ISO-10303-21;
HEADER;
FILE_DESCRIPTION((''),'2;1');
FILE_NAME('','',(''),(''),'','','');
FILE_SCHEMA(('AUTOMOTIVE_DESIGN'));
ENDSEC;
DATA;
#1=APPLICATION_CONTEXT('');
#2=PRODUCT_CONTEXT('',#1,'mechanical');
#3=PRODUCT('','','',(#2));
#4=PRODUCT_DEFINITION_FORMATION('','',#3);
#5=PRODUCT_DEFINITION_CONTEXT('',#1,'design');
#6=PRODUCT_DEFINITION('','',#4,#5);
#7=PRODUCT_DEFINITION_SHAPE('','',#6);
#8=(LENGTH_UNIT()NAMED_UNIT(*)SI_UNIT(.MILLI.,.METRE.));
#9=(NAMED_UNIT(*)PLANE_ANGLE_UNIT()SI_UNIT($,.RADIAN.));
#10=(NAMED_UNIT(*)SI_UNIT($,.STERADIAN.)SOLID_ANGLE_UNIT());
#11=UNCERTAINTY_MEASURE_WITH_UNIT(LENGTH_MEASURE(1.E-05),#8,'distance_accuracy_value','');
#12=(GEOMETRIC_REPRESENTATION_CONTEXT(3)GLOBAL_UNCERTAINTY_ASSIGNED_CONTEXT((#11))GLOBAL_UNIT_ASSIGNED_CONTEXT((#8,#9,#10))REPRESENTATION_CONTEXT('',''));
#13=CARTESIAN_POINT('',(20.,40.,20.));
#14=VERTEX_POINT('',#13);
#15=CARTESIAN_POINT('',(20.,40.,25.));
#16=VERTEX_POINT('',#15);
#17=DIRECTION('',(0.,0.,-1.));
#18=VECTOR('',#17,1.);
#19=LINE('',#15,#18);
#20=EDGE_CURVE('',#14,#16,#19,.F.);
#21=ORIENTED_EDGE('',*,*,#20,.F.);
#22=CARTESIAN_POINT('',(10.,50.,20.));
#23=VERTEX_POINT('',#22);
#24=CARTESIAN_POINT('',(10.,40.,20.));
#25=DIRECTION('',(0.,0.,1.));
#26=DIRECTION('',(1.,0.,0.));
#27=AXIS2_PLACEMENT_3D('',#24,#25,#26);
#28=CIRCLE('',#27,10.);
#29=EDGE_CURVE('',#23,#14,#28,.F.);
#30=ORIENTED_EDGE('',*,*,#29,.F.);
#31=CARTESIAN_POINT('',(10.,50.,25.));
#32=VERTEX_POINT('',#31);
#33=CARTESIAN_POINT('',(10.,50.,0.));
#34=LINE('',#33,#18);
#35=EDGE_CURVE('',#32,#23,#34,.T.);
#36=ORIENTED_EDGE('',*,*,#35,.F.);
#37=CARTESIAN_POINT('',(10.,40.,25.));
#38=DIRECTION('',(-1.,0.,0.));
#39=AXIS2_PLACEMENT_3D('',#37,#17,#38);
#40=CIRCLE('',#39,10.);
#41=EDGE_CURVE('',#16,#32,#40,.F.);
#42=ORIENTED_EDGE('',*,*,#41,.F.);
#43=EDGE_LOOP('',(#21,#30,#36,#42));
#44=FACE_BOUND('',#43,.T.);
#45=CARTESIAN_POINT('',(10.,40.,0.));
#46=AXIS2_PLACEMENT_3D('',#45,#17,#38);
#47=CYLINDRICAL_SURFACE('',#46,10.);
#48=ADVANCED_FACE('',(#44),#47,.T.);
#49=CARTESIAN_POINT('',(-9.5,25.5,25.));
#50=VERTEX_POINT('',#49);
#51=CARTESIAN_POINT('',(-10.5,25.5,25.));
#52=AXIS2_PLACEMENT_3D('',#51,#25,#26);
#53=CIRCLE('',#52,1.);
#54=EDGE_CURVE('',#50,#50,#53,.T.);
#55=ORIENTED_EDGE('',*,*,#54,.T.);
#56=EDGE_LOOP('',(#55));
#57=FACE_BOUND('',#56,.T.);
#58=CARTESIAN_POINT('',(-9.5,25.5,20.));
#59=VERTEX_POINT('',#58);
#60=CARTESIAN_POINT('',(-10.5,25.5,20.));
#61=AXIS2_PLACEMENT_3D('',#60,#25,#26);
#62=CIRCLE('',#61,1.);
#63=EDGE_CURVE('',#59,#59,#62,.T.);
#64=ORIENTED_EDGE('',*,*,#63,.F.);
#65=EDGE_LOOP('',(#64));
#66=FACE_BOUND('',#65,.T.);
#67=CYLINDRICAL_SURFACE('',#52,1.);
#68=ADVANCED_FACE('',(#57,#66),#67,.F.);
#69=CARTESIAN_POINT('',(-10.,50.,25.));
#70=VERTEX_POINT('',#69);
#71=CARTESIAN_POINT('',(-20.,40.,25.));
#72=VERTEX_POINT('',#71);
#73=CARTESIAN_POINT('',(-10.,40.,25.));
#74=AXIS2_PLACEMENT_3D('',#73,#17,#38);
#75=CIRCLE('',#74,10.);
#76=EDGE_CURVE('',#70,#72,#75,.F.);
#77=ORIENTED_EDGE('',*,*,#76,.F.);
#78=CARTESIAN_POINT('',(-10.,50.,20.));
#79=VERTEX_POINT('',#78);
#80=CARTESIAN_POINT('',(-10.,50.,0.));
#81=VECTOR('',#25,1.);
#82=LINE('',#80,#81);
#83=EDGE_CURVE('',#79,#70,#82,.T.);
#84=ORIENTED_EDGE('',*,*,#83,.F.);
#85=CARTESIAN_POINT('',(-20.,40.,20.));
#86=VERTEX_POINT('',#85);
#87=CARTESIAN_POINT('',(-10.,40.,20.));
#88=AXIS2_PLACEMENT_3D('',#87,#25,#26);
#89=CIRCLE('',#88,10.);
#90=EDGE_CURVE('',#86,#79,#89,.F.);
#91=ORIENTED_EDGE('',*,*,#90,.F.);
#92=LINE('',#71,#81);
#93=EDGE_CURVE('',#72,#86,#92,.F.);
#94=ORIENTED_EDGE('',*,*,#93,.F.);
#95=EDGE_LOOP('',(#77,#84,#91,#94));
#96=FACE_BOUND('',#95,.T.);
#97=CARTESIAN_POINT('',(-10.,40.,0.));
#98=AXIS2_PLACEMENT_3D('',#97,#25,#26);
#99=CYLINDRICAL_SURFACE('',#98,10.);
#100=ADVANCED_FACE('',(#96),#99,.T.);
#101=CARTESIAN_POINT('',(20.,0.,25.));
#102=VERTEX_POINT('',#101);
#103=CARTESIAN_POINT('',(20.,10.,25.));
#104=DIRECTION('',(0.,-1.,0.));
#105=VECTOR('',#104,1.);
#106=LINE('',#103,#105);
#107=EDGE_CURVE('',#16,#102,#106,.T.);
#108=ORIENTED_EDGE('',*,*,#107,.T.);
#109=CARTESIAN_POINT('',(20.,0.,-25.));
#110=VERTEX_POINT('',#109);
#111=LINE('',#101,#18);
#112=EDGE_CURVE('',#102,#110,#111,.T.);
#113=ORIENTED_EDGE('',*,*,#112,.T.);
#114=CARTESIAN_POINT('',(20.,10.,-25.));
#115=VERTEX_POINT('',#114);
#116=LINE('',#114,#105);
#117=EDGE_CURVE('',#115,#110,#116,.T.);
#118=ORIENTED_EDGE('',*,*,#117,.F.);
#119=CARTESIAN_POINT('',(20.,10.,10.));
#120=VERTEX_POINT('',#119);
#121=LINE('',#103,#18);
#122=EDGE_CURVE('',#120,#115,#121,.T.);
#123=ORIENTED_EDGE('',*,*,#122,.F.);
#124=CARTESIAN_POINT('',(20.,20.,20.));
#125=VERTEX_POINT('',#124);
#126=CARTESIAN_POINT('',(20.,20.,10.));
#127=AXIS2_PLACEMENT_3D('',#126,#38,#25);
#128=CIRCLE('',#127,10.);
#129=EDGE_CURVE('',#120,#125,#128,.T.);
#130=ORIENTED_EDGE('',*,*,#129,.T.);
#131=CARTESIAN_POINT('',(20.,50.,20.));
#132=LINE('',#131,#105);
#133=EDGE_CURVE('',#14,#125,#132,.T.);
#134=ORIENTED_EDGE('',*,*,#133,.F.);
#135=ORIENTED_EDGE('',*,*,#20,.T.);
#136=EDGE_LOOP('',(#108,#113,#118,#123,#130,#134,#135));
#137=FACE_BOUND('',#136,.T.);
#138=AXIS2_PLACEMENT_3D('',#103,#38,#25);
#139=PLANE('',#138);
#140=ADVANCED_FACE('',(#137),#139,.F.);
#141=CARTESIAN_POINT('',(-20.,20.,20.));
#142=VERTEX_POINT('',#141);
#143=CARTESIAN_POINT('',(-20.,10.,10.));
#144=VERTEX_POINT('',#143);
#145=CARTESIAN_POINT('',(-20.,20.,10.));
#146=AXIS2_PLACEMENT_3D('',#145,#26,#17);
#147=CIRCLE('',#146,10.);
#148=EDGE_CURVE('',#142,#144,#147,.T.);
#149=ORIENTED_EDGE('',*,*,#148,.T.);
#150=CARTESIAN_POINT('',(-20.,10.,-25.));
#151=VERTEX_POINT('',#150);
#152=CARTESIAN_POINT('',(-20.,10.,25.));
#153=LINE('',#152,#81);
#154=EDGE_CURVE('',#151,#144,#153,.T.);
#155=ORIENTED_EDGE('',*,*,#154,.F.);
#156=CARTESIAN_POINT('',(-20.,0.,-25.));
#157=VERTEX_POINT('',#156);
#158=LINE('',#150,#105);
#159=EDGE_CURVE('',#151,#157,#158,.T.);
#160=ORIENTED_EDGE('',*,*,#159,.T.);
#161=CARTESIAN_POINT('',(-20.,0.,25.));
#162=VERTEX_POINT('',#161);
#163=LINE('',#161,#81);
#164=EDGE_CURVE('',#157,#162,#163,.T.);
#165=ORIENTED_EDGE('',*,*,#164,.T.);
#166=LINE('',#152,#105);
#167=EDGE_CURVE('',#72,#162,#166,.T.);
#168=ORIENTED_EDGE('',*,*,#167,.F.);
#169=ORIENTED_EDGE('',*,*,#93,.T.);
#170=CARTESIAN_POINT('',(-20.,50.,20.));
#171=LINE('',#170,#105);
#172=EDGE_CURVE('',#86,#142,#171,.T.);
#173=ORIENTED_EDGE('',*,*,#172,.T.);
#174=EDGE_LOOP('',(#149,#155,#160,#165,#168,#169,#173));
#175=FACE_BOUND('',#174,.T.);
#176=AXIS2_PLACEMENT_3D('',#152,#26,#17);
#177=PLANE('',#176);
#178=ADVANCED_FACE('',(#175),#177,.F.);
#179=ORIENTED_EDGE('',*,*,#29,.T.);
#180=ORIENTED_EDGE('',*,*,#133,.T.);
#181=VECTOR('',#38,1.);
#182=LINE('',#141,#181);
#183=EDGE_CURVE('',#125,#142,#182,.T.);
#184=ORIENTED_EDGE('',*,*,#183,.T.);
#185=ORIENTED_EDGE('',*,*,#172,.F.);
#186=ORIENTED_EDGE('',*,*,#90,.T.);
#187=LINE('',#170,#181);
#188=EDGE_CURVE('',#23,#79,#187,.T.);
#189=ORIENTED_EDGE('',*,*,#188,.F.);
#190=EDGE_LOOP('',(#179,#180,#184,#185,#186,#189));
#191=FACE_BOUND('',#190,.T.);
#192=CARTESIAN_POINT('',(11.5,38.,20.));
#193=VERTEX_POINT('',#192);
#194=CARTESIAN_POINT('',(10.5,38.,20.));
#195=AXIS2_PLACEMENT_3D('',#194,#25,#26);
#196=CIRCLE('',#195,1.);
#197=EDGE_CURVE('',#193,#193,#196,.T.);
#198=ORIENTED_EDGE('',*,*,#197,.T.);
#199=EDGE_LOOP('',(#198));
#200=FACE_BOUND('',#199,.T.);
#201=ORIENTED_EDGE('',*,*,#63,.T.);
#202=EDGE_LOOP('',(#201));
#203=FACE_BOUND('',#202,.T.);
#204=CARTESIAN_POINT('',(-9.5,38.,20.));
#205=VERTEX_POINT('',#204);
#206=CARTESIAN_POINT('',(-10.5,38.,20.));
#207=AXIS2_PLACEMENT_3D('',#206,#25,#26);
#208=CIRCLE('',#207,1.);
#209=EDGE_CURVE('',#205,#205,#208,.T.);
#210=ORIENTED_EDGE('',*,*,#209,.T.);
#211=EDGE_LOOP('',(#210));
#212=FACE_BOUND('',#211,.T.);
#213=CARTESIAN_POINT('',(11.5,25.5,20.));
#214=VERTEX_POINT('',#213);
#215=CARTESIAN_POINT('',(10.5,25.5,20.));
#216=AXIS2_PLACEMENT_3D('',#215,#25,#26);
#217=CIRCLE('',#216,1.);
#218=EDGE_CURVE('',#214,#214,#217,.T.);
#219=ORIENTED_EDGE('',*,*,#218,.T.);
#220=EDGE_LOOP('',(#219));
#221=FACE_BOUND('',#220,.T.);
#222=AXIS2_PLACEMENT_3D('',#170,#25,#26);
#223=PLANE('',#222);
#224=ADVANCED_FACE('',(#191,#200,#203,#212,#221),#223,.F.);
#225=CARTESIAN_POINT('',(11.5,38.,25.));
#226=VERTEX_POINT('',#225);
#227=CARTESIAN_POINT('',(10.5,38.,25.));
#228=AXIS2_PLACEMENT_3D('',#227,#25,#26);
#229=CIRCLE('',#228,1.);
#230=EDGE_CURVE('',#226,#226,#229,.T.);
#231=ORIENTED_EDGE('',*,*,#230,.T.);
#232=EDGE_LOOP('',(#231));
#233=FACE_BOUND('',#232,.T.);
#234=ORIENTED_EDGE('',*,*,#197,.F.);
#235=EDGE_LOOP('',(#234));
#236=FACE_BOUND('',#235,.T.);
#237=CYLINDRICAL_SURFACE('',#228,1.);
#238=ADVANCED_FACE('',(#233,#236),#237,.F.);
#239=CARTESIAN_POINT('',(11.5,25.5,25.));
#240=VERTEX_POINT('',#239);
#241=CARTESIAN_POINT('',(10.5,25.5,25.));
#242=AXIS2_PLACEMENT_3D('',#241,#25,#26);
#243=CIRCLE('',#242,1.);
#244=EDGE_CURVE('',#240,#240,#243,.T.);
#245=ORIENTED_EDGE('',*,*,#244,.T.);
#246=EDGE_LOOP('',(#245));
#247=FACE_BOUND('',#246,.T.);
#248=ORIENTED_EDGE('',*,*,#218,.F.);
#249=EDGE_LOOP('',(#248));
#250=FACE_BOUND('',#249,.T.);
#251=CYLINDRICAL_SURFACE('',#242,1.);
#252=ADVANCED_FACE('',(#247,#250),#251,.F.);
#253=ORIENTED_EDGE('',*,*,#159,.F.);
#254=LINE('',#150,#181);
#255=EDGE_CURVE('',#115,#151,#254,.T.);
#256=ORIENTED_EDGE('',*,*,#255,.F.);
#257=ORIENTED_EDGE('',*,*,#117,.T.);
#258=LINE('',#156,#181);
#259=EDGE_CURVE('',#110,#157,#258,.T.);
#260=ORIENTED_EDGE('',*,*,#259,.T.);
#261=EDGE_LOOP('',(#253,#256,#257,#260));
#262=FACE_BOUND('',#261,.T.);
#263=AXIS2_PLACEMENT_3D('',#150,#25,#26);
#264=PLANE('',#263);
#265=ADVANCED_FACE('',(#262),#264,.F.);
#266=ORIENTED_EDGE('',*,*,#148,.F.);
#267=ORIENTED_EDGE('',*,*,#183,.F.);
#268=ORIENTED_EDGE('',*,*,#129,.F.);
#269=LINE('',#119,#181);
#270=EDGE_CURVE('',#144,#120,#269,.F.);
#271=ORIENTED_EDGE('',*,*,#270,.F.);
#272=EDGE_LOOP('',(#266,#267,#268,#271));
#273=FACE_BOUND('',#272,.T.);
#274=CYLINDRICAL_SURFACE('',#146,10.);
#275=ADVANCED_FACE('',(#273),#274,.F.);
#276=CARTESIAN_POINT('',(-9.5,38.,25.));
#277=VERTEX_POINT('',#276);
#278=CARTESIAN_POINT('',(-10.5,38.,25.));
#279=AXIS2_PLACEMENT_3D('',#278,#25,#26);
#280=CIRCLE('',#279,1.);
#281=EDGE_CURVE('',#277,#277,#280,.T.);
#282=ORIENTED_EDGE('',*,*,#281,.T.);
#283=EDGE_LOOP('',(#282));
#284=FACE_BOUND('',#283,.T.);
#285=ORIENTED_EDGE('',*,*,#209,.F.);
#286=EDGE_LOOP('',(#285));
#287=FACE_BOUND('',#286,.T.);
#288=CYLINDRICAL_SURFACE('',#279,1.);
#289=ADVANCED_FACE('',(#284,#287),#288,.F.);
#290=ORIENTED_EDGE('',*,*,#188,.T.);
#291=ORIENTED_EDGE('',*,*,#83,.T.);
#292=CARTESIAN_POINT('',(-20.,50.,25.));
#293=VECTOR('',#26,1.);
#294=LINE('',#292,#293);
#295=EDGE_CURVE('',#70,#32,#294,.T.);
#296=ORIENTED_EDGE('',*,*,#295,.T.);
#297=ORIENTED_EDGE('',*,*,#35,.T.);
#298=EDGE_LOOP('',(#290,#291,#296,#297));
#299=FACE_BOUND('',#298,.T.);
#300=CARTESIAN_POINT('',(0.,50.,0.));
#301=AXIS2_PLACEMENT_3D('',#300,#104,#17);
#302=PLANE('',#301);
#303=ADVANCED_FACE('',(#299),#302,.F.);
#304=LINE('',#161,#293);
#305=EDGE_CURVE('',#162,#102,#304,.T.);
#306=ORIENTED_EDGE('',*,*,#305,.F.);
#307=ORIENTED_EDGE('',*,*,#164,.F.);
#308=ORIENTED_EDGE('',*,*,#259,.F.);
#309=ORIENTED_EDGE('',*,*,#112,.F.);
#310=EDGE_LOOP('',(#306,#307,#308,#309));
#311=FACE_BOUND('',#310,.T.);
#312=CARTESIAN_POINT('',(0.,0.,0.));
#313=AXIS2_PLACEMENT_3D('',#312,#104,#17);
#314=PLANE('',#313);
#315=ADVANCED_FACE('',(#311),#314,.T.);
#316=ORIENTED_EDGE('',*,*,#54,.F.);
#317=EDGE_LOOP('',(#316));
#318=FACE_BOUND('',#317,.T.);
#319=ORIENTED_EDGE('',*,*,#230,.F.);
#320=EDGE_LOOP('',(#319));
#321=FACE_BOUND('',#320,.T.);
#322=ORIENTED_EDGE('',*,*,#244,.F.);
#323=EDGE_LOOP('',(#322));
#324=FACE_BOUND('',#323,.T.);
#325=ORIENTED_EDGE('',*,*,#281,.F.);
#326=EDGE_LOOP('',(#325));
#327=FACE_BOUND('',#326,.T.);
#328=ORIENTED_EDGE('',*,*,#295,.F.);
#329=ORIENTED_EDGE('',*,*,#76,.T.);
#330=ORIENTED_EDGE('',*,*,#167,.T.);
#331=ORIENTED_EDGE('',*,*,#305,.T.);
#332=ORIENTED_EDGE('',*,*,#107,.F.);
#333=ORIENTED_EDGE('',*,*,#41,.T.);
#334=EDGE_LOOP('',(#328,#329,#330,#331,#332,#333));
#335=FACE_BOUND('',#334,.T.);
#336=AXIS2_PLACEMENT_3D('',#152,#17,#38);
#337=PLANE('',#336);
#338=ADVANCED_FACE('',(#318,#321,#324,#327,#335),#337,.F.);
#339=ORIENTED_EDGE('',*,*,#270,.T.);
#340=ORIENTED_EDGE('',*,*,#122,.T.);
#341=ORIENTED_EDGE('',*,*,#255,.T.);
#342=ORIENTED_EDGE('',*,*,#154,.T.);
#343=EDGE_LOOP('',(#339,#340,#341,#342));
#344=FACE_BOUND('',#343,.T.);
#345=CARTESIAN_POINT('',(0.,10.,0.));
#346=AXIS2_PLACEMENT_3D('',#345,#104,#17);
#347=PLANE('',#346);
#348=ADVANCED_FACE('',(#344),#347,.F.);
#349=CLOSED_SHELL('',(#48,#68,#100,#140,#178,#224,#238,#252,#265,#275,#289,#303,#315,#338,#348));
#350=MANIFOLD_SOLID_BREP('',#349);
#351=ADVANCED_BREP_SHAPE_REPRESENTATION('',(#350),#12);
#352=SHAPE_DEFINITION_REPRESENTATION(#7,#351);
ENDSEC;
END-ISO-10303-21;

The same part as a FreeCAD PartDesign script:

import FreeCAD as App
import Part
import Sketcher

V = App.Vector


def edges_at(feature, points):
    """Names of the edges that pass closest to the given points."""
    edges = feature.Shape.Edges
    near = lambda p: min(range(len(edges)), key=lambda i: edges[i].distToShape(Part.Vertex(*p))[0])
    return sorted({f"Edge{near(p) + 1}" for p in points})


def add_polygon(sketch, points):
    """Adds a closed chain of lines whose ends are joined by coincident constraints."""
    first, n = sketch.GeometryCount, len(points)
    for a, b in zip(points, points[1:] + points[:1]):
        sketch.addGeometry(Part.LineSegment(App.Vector(*a, 0), App.Vector(*b, 0)), False)
    for i in range(n):
        sketch.addConstraint(Sketcher.Constraint("Coincident", first + i, 2, first + (i + 1) % n, 1))

doc = App.newDocument("Part")
body = doc.addObject("PartDesign::Body", "Body")

sketch1 = doc.addObject("Sketcher::SketchObject", "Sketch")
body.addObject(sketch1)
sketch1.AttachmentSupport = (doc.XZ_Plane, [""])
sketch1.MapMode = "FlatFace"
add_polygon(sketch1, [(-20, -25), (-20, 25), (20, 25), (20, -25)])
sketch1.addConstraint([
    Sketcher.Constraint("Vertical", 0),
    Sketcher.Constraint("Horizontal", 1),
    Sketcher.Constraint("Vertical", 2),
    Sketcher.Constraint("Horizontal", 3),
    Sketcher.Constraint("Symmetric", 0, 2, 2, 2, -1, 1),
    Sketcher.Constraint("DistanceX", 1, 1, 1, 2, 40.0),
    Sketcher.Constraint("DistanceY", 0, 1, 0, 2, 50.0),
])
pad1 = doc.addObject("PartDesign::Pad", "Pad")
body.addObject(pad1)
pad1.Profile = sketch1
pad1.Length = 10
pad1.Reversed = True

sketch2 = doc.addObject("Sketcher::SketchObject", "Sketch001")
body.addObject(sketch2)
sketch2.AttachmentSupport = (doc.XZ_Plane, [""])
sketch2.MapMode = "FlatFace"
sketch2.AttachmentOffset = App.Placement(V(0, 0, -10), App.Rotation())
add_polygon(sketch2, [(-20, 20), (-20, 25), (20, 25), (20, 20)])
sketch2.addConstraint([
    Sketcher.Constraint("Vertical", 0),
    Sketcher.Constraint("Horizontal", 1),
    Sketcher.Constraint("Vertical", 2),
    Sketcher.Constraint("Horizontal", 3),
    Sketcher.Constraint("DistanceX", 1, 1, 1, 2, 40.0),
    Sketcher.Constraint("DistanceY", 0, 1, 0, 2, 5.0),
    Sketcher.Constraint("DistanceX", 0, 2, -1, 1, 20.0),
    Sketcher.Constraint("DistanceY", -1, 1, 0, 2, 25.0),
])
pad2 = doc.addObject("PartDesign::Pad", "Pad001")
body.addObject(pad2)
pad2.Profile = sketch2
pad2.Length = 40
pad2.Reversed = True

sketch3 = doc.addObject("Sketcher::SketchObject", "Sketch002")
body.addObject(sketch3)
sketch3.AttachmentSupport = (doc.XY_Plane, [""])
sketch3.MapMode = "FlatFace"
sketch3.AttachmentOffset = App.Placement(V(0, 0, 25), App.Rotation())
sketch3.addGeometry([
    Part.Circle(V(-10.5, 38, 0), V(0, 0, 1), 1),
    Part.Circle(V(10.5, 38, 0), V(0, 0, 1), 1),
    Part.Circle(V(-10.5, 25.5, 0), V(0, 0, 1), 1),
    Part.Circle(V(10.5, 25.5, 0), V(0, 0, 1), 1),
], False)
sketch3.addConstraint([
    Sketcher.Constraint("Equal", 0, 1),
    Sketcher.Constraint("Equal", 1, 2),
    Sketcher.Constraint("Equal", 2, 3),
    Sketcher.Constraint("Symmetric", 0, 3, 1, 3, -2),
    Sketcher.Constraint("Symmetric", 2, 3, 3, 3, -2),
    Sketcher.Constraint("Vertical", 0, 3, 2, 3),
    Sketcher.Constraint("Diameter", 0, 2.0),
    Sketcher.Constraint("DistanceY", -1, 1, 0, 3, 38.0),
    Sketcher.Constraint("DistanceX", 0, 3, 1, 3, 21.0),
    Sketcher.Constraint("DistanceY", -1, 1, 2, 3, 25.5),
])
doc.recompute()
hole = doc.addObject("PartDesign::Hole", "Hole")
body.addObject(hole)
hole.Profile = sketch3
hole.ThreadType = "None"
hole.Diameter = 2
hole.DepthType = "ThroughAll"
doc.recompute()

fillet = doc.addObject("PartDesign::Fillet", "Fillet")
body.addObject(fillet)
fillet.Base = (hole, edges_at(hole, [(0, 10, 20), (-20, 50, 22.5), (20, 50, 22.5)]))
fillet.Radius = 10

doc.recompute()
